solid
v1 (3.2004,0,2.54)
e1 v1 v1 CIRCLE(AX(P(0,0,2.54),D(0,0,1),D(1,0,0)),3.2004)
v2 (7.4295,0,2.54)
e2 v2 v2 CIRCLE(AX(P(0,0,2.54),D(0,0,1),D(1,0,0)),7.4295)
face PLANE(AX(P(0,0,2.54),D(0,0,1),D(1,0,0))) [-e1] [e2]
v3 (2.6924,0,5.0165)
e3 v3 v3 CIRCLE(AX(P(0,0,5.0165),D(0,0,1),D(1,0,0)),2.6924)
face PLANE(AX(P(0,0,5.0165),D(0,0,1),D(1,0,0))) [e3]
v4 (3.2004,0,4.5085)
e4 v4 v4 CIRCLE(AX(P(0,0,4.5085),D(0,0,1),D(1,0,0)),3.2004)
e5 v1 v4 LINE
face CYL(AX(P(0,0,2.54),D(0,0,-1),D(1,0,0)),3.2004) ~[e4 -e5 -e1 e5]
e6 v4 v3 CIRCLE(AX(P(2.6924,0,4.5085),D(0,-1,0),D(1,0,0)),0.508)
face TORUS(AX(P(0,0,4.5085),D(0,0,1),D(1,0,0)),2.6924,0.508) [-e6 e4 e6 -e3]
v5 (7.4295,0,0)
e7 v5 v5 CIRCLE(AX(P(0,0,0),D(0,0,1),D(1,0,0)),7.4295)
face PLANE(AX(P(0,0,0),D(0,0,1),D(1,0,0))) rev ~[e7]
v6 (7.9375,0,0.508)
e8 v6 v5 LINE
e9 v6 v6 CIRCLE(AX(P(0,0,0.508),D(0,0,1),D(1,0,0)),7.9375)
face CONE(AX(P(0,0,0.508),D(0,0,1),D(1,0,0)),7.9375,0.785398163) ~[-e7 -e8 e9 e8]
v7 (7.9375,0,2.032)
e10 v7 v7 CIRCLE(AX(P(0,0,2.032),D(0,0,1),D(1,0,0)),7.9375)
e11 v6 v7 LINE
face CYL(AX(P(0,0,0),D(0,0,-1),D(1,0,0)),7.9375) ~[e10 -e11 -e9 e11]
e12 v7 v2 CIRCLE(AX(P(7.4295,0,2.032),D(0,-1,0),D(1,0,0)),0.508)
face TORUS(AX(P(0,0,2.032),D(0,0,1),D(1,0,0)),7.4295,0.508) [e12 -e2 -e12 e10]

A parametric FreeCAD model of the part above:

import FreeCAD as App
import Part
import Sketcher

V = App.Vector
Q = App.Units.Quantity


def edges_at(feature, points):
    """Names of the edges that pass closest to the given points."""
    edges = feature.Shape.Edges
    near = lambda p: min(range(len(edges)), key=lambda i: edges[i].distToShape(Part.Vertex(*p))[0])
    return sorted({f"Edge{near(p) + 1}" for p in points})

doc = App.newDocument("Part")
params = doc.addObject("Spreadsheet::Sheet", "Params")
for row, (alias, value) in enumerate([
    ("sketch1_diameter", "0.625 in"),
    ("pad1_length", "0.1 in"),
    ("sketch2_diameter", "0.252 in"),
    ("pad2_length", "0.0975 in"),
    ("fillet_radius", "0.02 in"),
    ("chamfer_size", "0.02 in"),
], start=1):
    params.set(f"A{row}", alias)
    params.set(f"B{row}", "=" + value)
    params.setAlias(f"B{row}", alias)

body = doc.addObject("PartDesign::Body", "Body")

# Sketch on XY plane
sketch1 = doc.addObject("Sketcher::SketchObject", "Sketch")
body.addObject(sketch1)
sketch1.AttachmentSupport = (doc.XY_Plane, [""])
sketch1.MapMode = "FlatFace"
sketch1.addGeometry(Part.Circle(V(0, 0, 0), V(0, 0, 1), 8), False)
sketch1.addConstraint([
    Sketcher.Constraint("Coincident", 0, 3, -1, 1),
    Sketcher.Constraint("Diameter", 0, Q("0.625 in")),
])
sketch1.setExpression("Constraints[1]", "Params.sketch1_diameter")
pad1 = doc.addObject("PartDesign::Pad", "Pad")
body.addObject(pad1)
pad1.Profile = sketch1
pad1.setExpression("Length", "Params.pad1_length")

# Sketch on XY plane
sketch2 = doc.addObject("Sketcher::SketchObject", "Sketch001")
body.addObject(sketch2)
sketch2.AttachmentSupport = (doc.XY_Plane, [""])
sketch2.MapMode = "FlatFace"
sketch2.AttachmentOffset = App.Placement(V(0, 0, 0.1 * 25.4), App.Rotation())
sketch2.addGeometry(Part.Circle(V(0, 0, 0), V(0, 0, 1), 3.2), False)
sketch2.addConstraint([
    Sketcher.Constraint("Coincident", 0, 3, -1, 1),
    Sketcher.Constraint("Diameter", 0, Q("0.252 in")),
])
sketch2.setExpression("Constraints[1]", "Params.sketch2_diameter")
pad2 = doc.addObject("PartDesign::Pad", "Pad001")
body.addObject(pad2)
pad2.Profile = sketch2
pad2.setExpression("Length", "Params.pad2_length")
doc.recompute()

fillet = doc.addObject("PartDesign::Fillet", "Fillet")
body.addObject(fillet)
fillet.Base = (pad2, edges_at(pad2, [(-3.2, 0, 5.016), (-7.938, 0, 2.54)]))
fillet.setExpression("Radius", "Params.fillet_radius")
doc.recompute()

chamfer = doc.addObject("PartDesign::Chamfer", "Chamfer")
body.addObject(chamfer)
chamfer.Base = (fillet, edges_at(fillet, [(-7.938, 0, 0)]))
chamfer.setExpression("Size", "Params.chamfer_size")

doc.recompute()
